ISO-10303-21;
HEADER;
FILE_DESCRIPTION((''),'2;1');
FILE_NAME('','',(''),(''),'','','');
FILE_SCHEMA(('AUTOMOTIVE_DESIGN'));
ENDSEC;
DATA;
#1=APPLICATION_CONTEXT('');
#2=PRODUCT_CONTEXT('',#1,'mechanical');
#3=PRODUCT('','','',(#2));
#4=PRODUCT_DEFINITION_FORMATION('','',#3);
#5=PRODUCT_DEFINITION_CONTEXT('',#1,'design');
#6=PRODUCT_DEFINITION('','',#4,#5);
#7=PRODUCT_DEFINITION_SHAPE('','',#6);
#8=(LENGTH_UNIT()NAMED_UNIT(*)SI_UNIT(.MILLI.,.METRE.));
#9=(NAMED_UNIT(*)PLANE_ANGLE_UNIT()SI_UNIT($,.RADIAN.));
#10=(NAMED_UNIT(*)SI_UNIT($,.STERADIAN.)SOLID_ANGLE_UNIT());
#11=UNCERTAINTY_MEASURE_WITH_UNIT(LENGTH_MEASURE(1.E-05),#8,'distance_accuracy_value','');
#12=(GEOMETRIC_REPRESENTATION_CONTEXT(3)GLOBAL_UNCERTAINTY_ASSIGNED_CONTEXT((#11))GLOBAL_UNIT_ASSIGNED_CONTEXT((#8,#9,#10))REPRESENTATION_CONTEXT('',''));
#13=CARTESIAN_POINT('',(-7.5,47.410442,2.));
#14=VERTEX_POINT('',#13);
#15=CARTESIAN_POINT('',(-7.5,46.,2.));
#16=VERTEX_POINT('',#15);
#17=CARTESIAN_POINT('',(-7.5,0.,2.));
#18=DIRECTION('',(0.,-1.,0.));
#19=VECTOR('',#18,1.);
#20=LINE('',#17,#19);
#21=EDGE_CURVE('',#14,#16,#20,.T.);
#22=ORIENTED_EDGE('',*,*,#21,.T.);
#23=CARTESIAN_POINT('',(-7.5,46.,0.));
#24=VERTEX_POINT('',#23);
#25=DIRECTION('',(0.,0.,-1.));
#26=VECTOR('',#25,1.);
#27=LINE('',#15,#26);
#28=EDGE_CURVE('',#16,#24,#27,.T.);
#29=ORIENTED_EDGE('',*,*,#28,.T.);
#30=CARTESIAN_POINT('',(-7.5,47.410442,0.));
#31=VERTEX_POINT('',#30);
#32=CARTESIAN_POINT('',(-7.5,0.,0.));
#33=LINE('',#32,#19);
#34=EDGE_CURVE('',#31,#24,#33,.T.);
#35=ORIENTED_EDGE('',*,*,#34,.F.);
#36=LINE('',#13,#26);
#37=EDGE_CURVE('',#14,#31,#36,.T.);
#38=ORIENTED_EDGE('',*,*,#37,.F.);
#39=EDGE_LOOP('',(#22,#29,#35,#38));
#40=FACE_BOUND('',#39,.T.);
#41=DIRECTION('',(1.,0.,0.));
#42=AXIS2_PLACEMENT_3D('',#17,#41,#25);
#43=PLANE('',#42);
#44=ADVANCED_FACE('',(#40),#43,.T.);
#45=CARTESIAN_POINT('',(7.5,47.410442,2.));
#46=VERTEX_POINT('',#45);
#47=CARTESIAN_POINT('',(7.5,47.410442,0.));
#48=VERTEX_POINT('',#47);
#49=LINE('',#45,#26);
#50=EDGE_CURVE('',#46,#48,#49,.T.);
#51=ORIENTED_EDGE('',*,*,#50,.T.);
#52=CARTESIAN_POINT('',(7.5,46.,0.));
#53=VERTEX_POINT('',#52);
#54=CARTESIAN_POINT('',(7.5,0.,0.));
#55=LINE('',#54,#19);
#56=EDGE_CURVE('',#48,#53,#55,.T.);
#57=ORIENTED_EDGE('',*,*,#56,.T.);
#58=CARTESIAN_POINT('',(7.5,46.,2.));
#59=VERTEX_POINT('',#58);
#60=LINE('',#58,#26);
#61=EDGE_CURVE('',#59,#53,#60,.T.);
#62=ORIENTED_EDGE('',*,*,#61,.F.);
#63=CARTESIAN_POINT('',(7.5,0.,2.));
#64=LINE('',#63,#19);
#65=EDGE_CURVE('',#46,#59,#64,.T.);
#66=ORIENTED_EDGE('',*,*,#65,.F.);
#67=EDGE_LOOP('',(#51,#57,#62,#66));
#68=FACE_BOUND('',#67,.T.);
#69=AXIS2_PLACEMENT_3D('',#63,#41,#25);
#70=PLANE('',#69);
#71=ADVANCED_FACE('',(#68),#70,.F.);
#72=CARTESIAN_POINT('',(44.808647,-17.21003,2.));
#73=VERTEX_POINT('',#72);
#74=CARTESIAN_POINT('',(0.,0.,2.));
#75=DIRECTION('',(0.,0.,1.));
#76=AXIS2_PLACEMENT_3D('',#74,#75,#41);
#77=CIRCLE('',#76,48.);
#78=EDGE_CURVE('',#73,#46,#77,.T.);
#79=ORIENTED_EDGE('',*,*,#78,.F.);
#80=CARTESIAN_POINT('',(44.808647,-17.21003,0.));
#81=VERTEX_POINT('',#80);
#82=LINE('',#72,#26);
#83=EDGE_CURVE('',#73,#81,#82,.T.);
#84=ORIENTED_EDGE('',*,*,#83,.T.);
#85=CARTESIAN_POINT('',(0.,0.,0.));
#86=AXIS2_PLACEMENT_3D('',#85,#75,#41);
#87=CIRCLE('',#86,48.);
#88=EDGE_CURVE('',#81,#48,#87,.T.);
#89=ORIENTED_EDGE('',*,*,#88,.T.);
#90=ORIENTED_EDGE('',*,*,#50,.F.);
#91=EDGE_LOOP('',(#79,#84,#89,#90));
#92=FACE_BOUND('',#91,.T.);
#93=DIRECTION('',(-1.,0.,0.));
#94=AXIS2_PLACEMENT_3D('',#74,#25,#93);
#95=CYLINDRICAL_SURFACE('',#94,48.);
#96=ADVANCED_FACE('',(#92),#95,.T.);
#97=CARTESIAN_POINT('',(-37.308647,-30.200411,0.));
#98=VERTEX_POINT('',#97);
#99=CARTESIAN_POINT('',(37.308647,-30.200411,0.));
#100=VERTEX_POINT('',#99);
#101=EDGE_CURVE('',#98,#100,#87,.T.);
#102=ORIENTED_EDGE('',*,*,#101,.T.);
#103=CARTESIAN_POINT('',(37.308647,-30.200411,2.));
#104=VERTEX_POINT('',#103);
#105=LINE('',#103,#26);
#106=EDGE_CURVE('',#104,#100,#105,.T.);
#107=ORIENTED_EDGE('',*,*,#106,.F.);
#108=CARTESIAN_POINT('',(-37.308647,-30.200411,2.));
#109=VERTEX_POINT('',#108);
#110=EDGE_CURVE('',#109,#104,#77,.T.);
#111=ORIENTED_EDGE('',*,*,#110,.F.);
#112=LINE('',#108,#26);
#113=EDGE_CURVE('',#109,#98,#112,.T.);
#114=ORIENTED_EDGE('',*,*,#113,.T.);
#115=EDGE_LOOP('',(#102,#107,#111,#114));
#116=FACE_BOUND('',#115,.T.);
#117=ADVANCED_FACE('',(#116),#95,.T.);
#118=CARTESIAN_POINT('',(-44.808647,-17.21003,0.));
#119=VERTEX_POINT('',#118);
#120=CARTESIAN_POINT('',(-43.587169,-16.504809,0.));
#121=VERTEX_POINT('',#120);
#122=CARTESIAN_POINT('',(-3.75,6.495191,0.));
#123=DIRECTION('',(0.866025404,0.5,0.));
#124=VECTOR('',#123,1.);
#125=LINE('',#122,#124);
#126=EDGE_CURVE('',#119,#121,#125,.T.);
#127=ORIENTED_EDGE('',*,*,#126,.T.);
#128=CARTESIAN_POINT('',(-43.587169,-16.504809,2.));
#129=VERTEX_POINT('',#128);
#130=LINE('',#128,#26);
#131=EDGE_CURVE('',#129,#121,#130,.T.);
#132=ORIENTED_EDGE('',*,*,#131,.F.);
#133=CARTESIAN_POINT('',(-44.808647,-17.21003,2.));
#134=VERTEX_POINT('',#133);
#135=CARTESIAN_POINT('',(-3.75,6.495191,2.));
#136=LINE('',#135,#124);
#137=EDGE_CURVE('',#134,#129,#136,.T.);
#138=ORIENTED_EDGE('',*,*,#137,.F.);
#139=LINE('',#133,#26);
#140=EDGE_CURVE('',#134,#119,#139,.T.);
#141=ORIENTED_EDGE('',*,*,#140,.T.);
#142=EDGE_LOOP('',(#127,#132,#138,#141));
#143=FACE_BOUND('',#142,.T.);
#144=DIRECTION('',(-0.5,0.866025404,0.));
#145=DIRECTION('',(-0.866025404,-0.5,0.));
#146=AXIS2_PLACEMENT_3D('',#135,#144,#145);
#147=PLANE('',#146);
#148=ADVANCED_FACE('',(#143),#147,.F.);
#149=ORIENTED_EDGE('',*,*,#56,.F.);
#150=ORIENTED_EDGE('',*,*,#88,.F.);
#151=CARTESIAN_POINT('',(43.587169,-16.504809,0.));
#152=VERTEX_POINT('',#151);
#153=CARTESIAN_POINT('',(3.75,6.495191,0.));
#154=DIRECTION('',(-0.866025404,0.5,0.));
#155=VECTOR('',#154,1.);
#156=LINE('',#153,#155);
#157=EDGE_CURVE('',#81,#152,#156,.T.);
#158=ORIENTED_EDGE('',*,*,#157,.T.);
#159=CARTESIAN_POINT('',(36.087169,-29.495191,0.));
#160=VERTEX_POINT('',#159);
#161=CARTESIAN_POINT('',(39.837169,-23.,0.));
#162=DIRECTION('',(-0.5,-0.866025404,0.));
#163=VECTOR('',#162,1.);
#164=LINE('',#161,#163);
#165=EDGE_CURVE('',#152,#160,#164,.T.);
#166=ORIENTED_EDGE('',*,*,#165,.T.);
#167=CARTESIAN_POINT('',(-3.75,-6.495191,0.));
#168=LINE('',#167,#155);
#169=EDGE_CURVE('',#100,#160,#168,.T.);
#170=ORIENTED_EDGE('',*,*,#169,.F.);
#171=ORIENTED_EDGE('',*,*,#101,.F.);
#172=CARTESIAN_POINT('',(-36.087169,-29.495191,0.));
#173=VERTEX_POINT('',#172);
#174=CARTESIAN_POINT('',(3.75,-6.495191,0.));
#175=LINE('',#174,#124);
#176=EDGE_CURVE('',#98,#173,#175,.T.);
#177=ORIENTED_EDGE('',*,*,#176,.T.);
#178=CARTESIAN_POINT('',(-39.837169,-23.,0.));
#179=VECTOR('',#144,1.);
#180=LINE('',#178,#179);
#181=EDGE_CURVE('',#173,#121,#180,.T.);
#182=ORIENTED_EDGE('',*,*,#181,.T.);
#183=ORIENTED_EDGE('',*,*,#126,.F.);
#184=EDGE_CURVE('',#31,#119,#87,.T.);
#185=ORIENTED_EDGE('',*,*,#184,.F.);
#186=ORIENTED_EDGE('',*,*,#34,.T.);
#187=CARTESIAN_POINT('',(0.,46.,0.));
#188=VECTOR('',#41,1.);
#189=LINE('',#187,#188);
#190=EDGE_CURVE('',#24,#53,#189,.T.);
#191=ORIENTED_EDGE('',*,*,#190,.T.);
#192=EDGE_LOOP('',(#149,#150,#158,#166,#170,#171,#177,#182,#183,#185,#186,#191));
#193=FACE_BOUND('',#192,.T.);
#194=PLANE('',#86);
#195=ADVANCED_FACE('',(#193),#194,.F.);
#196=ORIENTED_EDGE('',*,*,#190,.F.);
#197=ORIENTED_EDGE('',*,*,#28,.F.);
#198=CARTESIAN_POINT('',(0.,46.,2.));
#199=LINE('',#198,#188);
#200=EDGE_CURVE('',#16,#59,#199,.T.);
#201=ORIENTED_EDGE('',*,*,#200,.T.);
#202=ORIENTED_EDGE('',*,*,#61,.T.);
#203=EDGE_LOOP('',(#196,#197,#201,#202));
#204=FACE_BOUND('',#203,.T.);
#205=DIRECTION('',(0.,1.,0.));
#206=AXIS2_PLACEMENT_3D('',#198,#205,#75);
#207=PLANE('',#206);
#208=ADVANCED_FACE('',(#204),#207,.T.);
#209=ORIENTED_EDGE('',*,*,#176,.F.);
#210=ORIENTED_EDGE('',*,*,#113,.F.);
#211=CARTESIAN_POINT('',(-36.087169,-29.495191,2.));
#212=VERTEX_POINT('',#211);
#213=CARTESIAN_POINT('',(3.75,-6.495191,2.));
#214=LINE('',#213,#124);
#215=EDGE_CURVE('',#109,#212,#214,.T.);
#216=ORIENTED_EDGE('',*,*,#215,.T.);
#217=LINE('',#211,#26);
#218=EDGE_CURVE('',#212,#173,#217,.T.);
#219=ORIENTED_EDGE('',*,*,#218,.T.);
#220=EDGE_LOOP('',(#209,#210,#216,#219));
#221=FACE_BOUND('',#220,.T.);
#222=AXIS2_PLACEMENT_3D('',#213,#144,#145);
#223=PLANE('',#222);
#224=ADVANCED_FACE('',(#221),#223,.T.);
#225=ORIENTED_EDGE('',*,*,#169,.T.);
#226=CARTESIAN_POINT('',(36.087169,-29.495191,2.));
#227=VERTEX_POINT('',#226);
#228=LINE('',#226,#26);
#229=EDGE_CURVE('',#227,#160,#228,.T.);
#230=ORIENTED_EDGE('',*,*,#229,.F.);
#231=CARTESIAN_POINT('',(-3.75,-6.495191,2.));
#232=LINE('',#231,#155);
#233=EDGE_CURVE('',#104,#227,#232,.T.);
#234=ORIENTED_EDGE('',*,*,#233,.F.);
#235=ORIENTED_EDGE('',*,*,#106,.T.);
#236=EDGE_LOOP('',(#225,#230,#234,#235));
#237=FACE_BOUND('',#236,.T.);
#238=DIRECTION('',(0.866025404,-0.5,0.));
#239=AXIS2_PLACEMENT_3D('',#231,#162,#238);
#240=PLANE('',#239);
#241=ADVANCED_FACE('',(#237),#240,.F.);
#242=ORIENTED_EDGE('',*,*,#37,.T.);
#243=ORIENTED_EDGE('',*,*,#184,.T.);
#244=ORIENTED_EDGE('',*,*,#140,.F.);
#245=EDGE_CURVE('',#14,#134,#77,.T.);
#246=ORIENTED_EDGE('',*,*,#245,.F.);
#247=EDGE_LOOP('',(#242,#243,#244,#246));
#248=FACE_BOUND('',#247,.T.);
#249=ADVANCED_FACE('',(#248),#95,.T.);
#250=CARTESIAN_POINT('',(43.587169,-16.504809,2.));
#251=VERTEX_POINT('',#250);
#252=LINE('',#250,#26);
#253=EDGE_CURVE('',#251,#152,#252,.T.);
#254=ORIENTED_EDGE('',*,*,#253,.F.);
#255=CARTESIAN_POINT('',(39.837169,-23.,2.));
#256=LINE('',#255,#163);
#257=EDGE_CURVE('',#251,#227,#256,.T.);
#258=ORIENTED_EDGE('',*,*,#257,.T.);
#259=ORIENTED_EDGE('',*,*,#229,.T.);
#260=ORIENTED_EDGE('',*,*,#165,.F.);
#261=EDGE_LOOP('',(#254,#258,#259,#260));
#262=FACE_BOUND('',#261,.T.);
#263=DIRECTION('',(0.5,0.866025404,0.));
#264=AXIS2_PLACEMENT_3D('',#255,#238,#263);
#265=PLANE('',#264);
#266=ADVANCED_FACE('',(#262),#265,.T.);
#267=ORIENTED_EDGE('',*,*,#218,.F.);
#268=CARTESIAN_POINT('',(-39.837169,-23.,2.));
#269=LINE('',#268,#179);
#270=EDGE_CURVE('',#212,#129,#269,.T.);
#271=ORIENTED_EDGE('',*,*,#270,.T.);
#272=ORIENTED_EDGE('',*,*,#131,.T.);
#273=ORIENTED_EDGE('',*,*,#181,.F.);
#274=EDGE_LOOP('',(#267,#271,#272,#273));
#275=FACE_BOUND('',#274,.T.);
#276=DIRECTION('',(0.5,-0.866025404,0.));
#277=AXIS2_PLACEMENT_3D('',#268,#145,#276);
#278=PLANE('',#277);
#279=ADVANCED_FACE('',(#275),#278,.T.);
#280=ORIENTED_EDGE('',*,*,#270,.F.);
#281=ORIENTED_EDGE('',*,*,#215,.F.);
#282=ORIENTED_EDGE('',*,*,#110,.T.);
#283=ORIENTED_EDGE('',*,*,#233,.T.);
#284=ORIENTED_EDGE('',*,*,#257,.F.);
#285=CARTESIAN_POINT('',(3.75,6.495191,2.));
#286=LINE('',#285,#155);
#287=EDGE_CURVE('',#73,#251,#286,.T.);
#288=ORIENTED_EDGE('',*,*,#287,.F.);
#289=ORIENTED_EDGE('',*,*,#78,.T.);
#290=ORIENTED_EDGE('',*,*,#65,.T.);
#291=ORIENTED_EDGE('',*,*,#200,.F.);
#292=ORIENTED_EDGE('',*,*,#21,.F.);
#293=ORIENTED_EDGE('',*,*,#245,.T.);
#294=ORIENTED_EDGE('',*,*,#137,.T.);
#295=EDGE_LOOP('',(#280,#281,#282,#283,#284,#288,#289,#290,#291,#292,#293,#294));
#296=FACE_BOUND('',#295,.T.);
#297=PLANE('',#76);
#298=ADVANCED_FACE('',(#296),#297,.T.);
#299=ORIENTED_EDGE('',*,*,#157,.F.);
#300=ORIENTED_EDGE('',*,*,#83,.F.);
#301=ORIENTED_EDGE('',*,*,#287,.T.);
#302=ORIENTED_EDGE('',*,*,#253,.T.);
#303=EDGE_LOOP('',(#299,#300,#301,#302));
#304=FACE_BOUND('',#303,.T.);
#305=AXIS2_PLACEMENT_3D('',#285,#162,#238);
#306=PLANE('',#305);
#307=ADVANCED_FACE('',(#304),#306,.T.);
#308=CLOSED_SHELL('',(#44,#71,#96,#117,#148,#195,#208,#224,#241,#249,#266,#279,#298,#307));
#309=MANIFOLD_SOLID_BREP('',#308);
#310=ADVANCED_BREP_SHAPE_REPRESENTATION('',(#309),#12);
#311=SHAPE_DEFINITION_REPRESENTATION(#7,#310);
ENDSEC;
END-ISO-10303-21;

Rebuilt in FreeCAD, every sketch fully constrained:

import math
import FreeCAD as App
import Part
import Sketcher
Q = App.Units.Quantity

doc = App.newDocument("Part")
body = doc.addObject("PartDesign::Body", "Body")

sketch1 = doc.addObject("Sketcher::SketchObject", "Sketch")
body.addObject(sketch1)
sketch1.AttachmentSupport = (doc.XY_Plane, [""])
sketch1.MapMode = "FlatFace"
sketch1.addGeometry(Part.LineSegment(App.Vector(43.587169, -16.504809, 0), App.Vector(44.808647, -17.21003, 0)), False)
sketch1.addGeometry(Part.ArcOfCircle(Part.Circle(App.Vector(0, 0, 0), App.Vector(0, 0, 1), 48), math.radians(-21.010701), math.radians(0)), False)
sketch1.addGeometry(Part.ArcOfCircle(Part.Circle(App.Vector(0, 0, 0), App.Vector(0, 0, 1), 48), math.radians(0), math.radians(81.010701)), False)
sketch1.addGeometry(Part.LineSegment(App.Vector(7.5, 47.410442, 0), App.Vector(7.5, 46, 0)), False)
sketch1.addGeometry(Part.LineSegment(App.Vector(7.5, 46, 0), App.Vector(-7.5, 46, 0)), False)
sketch1.addGeometry(Part.LineSegment(App.Vector(-7.5, 46, 0), App.Vector(-7.5, 47.410442, 0)), False)
sketch1.addGeometry(Part.ArcOfCircle(Part.Circle(App.Vector(0, 0, 0), App.Vector(0, 0, 1), 48), math.radians(98.989299), math.radians(201.010701)), False)
sketch1.addGeometry(Part.LineSegment(App.Vector(-44.808647, -17.21003, 0), App.Vector(-43.587169, -16.504809, 0)), False)
sketch1.addGeometry(Part.LineSegment(App.Vector(-43.587169, -16.504809, 0), App.Vector(-36.087169, -29.495191, 0)), False)
sketch1.addGeometry(Part.LineSegment(App.Vector(-36.087169, -29.495191, 0), App.Vector(-37.308647, -30.200411, 0)), False)
sketch1.addGeometry(Part.ArcOfCircle(Part.Circle(App.Vector(0, 0, 0), App.Vector(0, 0, 1), 48), math.radians(-141.010701), math.radians(-38.989299)), False)
sketch1.addGeometry(Part.LineSegment(App.Vector(37.308647, -30.200411, 0), App.Vector(36.087169, -29.495191, 0)), False)
sketch1.addGeometry(Part.LineSegment(App.Vector(36.087169, -29.495191, 0), App.Vector(43.587169, -16.504809, 0)), False)
sketch1.addConstraint(Sketcher.Constraint("Coincident", 0, 2, 1, 1))
sketch1.addConstraint(Sketcher.Constraint("Tangent", 1, 2, 2, 1))
sketch1.addConstraint(Sketcher.Constraint("Coincident", 2, 2, 3, 1))
sketch1.addConstraint(Sketcher.Constraint("Coincident", 3, 2, 4, 1))
sketch1.addConstraint(Sketcher.Constraint("Coincident", 4, 2, 5, 1))
sketch1.addConstraint(Sketcher.Constraint("Coincident", 5, 2, 6, 1))
sketch1.addConstraint(Sketcher.Constraint("Coincident", 6, 2, 7, 1))
sketch1.addConstraint(Sketcher.Constraint("Coincident", 7, 2, 8, 1))
sketch1.addConstraint(Sketcher.Constraint("Coincident", 8, 2, 9, 1))
sketch1.addConstraint(Sketcher.Constraint("Coincident", 9, 2, 10, 1))
sketch1.addConstraint(Sketcher.Constraint("Coincident", 10, 2, 11, 1))
sketch1.addConstraint(Sketcher.Constraint("Coincident", 11, 2, 12, 1))
sketch1.addConstraint(Sketcher.Constraint("Coincident", 12, 2, 0, 1))
sketch1.addConstraint(Sketcher.Constraint("Vertical", 3))
sketch1.addConstraint(Sketcher.Constraint("Horizontal", 4))
sketch1.addConstraint(Sketcher.Constraint("Vertical", 5))
sketch1.addConstraint(Sketcher.Constraint("Coincident", 1, 3, -1, 1))
sketch1.addConstraint(Sketcher.Constraint("Coincident", 6, 3, -1, 1))
sketch1.addConstraint(Sketcher.Constraint("Coincident", 10, 3, -1, 1))
sketch1.addConstraint(Sketcher.Constraint("Equal", 1, 2))
sketch1.addConstraint(Sketcher.Constraint("Equal", 2, 6))
sketch1.addConstraint(Sketcher.Constraint("Equal", 6, 10))
sketch1.addConstraint(Sketcher.Constraint("Symmetric", 8, 2, 11, 2, -2))
sketch1.addConstraint(Sketcher.Constraint("Symmetric", 7, 2, 12, 2, -2))
sketch1.addConstraint(Sketcher.Constraint("PointOnObject", 1, 2, -1))
sketch1.addConstraint(Sketcher.Constraint("Perpendicular", 7, 8))
sketch1.addConstraint(Sketcher.Constraint("Perpendicular", 8, 9))
sketch1.addConstraint(Sketcher.Constraint("Parallel", 0, 11))
sketch1.addConstraint(Sketcher.Constraint("Perpendicular", 11, 12))
sketch1.addConstraint(Sketcher.Constraint("Horizontal", 2, 2, 5, 2))
sketch1.addConstraint(Sketcher.Constraint("Equal", 7, 9))
sketch1.addConstraint(Sketcher.Constraint("Radius", 1, 48.0))
sketch1.addConstraint(Sketcher.Constraint("DistanceX", 4, 2, 4, 1, 15.0))
sketch1.addConstraint(Sketcher.Constraint("Angle", 0, Q("-30 deg")))
sketch1.addConstraint(Sketcher.Constraint("Distance", 8, 15.0))
sketch1.addConstraint(Sketcher.Constraint("DistanceY", -1, 1, 3, 2, 46.0))
sketch1.addConstraint(Sketcher.Constraint("DistanceY", 9, 2, 7, 2, 13.695602))
pad1 = doc.addObject("PartDesign::Pad", "Pad")
body.addObject(pad1)
pad1.Profile = sketch1
pad1.Length = 2

doc.recompute()
